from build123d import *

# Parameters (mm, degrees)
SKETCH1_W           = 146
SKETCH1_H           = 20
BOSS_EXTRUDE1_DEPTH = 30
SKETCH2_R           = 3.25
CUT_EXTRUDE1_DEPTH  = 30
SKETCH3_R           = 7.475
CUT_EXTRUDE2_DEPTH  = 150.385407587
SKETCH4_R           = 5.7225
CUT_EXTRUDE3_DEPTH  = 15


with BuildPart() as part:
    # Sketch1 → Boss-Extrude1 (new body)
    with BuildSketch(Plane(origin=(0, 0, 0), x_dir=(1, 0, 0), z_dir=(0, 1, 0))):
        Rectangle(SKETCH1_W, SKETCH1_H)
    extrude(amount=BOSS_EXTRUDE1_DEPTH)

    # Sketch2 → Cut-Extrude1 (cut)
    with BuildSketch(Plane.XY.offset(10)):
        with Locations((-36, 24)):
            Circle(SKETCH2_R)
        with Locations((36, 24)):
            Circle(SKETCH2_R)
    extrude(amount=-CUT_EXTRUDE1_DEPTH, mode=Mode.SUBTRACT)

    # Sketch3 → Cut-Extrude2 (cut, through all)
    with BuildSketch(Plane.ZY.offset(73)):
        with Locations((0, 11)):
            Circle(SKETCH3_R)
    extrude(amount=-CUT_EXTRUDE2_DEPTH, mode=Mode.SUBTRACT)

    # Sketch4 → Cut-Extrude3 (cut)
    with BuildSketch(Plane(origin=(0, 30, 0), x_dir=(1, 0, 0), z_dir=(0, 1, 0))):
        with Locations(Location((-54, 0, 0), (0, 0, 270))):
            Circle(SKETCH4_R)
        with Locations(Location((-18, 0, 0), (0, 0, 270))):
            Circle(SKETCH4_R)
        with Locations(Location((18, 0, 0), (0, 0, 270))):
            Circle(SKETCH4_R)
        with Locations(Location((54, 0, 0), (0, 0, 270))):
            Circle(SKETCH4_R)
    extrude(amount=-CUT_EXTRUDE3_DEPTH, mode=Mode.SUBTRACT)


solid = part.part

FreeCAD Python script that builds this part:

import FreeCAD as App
import Part
import Sketcher
from FreeCAD import Vector
Q = App.Units.Quantity

doc = App.newDocument("Part")
body = doc.addObject("PartDesign::Body", "Body")

sketch1 = doc.addObject("Sketcher::SketchObject", "Sketch")
body.addObject(sketch1)
sketch1.AttachmentSupport = (doc.XZ_Plane, [""])
sketch1.MapMode = "FlatFace"
sketch1.addGeometry([
    Part.LineSegment(Vector(-73, -10, 0), Vector(-73, 10, 0)),
    Part.LineSegment(Vector(-73, 10, 0), Vector(73, 10, 0)),
    Part.LineSegment(Vector(73, 10, 0), Vector(73, -10, 0)),
    Part.LineSegment(Vector(73, -10, 0), Vector(-73, -10, 0)),
], False)
sketch1.addConstraint([
    Sketcher.Constraint("Coincident", 0, 2, 1, 1),
    Sketcher.Constraint("Coincident", 1, 2, 2, 1),
    Sketcher.Constraint("Coincident", 2, 2, 3, 1),
    Sketcher.Constraint("Coincident", 3, 2, 0, 1),
    Sketcher.Constraint("Vertical", 0),
    Sketcher.Constraint("Horizontal", 1),
    Sketcher.Constraint("Vertical", 2),
    Sketcher.Constraint("Horizontal", 3),
    Sketcher.Constraint("Symmetric", 0, 2, 2, 2, -1, 1),
    Sketcher.Constraint("DistanceX", 1, 1, 1, 2, Q("146 mm")),
    Sketcher.Constraint("DistanceY", 0, 1, 0, 2, Q("20 mm")),
])
pad1 = doc.addObject("PartDesign::Pad", "Pad")
body.addObject(pad1)
pad1.Profile = sketch1
pad1.Length = 30
pad1.Reversed = True

sketch2 = doc.addObject("Sketcher::SketchObject", "Sketch001")
body.addObject(sketch2)
sketch2.AttachmentSupport = (doc.XY_Plane, [""])
sketch2.MapMode = "FlatFace"
sketch2.AttachmentOffset = App.Placement(Vector(0, 0, 10), App.Rotation())
sketch2.addGeometry([
    Part.Circle(Vector(-36, 24, 0), Vector(0, 0, 1), 3.2),
    Part.Circle(Vector(36, 24, 0), Vector(0, 0, 1), 3.2),
], False)
sketch2.addConstraint([
    Sketcher.Constraint("Equal", 0, 1),
    Sketcher.Constraint("Symmetric", 0, 3, 1, 3, -2),
    Sketcher.Constraint("Diameter", 0, Q("6.5 mm")),
    Sketcher.Constraint("DistanceX", 0, 3, -1, 1, Q("36 mm")),
    Sketcher.Constraint("DistanceY", -1, 1, 0, 3, Q("24 mm")),
])
pocket1 = doc.addObject("PartDesign::Pocket", "Pocket")
body.addObject(pocket1)
pocket1.Profile = sketch2
pocket1.Length = 30

sketch3 = doc.addObject("Sketcher::SketchObject", "Sketch002")
body.addObject(sketch3)
sketch3.AttachmentSupport = (doc.YZ_Plane, [""])
sketch3.MapMode = "FlatFace"
sketch3.AttachmentOffset = App.Placement(Vector(0, 0, -73), App.Rotation())
sketch3.addGeometry(Part.Circle(Vector(11, 0, 0), Vector(0, 0, 1), 7), False)
sketch3.addConstraint([
    Sketcher.Constraint("PointOnObject", 0, 3, -1),
    Sketcher.Constraint("Diameter", 0, Q("14.95 mm")),
    Sketcher.Constraint("DistanceX", -1, 1, 0, 3, Q("11 mm")),
])
pocket2 = doc.addObject("PartDesign::Pocket", "Pocket001")
body.addObject(pocket2)
pocket2.Profile = sketch3
pocket2.Type = "ThroughAll"
pocket2.Reversed = True

sketch4 = doc.addObject("Sketcher::SketchObject", "Sketch003")
body.addObject(sketch4)
sketch4.AttachmentSupport = (doc.XZ_Plane, [""])
sketch4.MapMode = "FlatFace"
sketch4.AttachmentOffset = App.Placement(Vector(0, 0, -30), App.Rotation())
sketch4.addGeometry([
    Part.Circle(Vector(-54, 0, 0), Vector(0, 0, 1), 6),
    Part.Circle(Vector(-18, 0, 0), Vector(0, 0, 1), 6),
    Part.Circle(Vector(18, 0, 0), Vector(0, 0, 1), 6),
    Part.Circle(Vector(54, 0, 0), Vector(0, 0, 1), 6),
], False)
sketch4.addConstraint([
    Sketcher.Constraint("Equal", 0, 1),
    Sketcher.Constraint("Equal", 1, 2),
    Sketcher.Constraint("Equal", 2, 3),
    Sketcher.Constraint("Symmetric", 1, 3, 2, 3, -1, 1),
    Sketcher.Constraint("Symmetric", 0, 3, 3, 3, -1, 1),
    Sketcher.Constraint("PointOnObject", 0, 3, -1),
    Sketcher.Constraint("PointOnObject", 1, 3, -1),
    Sketcher.Constraint("Diameter", 0, Q("11.445 mm")),
    Sketcher.Constraint("DistanceX", 0, 3, -1, 1, Q("54 mm")),
    Sketcher.Constraint("DistanceX", 1, 3, -1, 1, Q("18 mm")),
])
pocket3 = doc.addObject("PartDesign::Pocket", "Pocket002")
body.addObject(pocket3)
pocket3.Profile = sketch4
pocket3.Length = 15
pocket3.Reversed = True

doc.recompute()
